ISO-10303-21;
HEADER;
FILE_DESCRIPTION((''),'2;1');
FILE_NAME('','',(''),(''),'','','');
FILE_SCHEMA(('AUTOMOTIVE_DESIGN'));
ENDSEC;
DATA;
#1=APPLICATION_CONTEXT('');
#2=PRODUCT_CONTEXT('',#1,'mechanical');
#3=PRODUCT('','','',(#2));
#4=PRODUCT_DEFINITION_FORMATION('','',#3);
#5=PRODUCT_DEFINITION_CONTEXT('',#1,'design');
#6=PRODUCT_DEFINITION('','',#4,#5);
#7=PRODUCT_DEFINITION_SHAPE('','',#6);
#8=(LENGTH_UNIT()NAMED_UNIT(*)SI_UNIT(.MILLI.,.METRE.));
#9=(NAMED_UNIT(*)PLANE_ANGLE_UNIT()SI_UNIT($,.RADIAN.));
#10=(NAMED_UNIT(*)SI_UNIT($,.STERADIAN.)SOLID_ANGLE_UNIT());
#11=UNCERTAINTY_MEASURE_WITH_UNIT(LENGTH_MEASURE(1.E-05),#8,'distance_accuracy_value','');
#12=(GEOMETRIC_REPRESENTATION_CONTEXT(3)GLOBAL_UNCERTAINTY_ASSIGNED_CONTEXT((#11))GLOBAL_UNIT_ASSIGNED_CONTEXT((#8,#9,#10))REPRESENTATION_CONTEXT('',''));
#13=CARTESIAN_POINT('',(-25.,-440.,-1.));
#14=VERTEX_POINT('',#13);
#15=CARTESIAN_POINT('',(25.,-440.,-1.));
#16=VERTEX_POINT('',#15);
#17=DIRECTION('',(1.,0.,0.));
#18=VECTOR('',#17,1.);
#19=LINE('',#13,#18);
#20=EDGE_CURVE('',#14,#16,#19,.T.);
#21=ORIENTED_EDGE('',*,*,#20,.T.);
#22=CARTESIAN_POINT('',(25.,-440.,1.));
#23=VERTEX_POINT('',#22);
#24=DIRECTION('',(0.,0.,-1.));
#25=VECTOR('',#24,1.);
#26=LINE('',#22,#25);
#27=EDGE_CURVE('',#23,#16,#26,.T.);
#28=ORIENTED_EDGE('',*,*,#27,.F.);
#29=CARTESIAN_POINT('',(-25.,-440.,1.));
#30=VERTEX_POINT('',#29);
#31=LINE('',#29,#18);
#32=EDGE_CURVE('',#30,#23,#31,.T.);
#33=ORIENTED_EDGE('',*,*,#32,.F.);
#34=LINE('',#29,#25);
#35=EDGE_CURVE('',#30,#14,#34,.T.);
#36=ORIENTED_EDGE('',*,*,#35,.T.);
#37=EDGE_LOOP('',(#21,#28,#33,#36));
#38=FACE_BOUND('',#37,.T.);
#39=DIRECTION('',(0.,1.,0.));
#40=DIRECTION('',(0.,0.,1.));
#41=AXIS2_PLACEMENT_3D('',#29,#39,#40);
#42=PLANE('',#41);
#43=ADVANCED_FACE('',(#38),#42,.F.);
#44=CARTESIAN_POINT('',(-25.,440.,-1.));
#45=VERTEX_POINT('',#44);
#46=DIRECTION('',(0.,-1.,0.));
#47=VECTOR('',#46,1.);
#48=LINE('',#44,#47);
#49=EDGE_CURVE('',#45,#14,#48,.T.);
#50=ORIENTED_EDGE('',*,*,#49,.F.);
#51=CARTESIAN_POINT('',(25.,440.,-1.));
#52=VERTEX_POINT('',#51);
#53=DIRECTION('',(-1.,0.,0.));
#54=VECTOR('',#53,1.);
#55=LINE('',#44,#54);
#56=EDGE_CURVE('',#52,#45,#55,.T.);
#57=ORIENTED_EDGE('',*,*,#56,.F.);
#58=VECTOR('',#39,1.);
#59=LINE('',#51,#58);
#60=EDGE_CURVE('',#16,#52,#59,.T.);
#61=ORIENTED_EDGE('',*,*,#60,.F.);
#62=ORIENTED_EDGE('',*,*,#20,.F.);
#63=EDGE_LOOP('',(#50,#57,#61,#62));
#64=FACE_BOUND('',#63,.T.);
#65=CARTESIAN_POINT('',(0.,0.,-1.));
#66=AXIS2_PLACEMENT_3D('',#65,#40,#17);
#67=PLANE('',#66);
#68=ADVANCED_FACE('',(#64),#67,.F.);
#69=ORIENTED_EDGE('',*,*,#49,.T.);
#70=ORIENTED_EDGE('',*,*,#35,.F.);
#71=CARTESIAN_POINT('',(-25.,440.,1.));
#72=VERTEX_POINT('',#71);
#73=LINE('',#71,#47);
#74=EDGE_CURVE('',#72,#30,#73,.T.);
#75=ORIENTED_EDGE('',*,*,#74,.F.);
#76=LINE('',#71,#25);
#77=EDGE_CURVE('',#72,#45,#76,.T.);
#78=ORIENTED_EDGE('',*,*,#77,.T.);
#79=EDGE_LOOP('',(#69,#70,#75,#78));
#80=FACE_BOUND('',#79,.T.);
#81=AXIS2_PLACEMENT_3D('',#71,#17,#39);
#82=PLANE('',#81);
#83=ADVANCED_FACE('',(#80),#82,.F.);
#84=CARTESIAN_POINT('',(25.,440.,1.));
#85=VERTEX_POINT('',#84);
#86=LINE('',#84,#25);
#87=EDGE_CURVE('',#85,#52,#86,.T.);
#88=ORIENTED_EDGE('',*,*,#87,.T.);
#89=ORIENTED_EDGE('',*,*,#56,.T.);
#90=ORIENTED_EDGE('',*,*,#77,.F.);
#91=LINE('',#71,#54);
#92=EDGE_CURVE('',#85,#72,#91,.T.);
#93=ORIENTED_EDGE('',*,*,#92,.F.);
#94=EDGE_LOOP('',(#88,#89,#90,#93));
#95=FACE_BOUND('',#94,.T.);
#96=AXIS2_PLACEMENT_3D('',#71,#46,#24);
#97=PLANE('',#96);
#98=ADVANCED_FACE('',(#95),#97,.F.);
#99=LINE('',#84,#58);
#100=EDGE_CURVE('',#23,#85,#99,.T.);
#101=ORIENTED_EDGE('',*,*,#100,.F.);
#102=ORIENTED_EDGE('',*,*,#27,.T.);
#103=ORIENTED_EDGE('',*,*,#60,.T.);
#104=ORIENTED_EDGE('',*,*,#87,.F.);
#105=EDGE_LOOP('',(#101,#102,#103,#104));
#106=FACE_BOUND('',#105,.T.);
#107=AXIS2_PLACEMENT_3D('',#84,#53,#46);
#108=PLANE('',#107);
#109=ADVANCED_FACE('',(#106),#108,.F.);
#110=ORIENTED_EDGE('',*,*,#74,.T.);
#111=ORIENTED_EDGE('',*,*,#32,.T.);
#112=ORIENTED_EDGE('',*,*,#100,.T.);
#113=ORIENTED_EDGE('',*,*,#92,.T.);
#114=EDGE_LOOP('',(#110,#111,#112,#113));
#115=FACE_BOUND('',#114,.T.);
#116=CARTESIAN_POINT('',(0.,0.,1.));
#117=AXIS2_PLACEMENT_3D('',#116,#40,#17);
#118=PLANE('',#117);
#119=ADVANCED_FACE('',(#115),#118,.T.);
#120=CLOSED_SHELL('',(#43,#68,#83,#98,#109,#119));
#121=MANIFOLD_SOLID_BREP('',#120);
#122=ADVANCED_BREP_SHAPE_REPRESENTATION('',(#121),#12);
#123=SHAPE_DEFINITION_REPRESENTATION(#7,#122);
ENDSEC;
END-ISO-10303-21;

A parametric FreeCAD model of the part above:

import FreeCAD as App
import Part
import Sketcher

V = App.Vector
Q = App.Units.Quantity


def add_polygon(sketch, points):
    """Adds a closed chain of lines whose ends are joined by coincident constraints."""
    first, n = sketch.GeometryCount, len(points)
    for a, b in zip(points, points[1:] + points[:1]):
        sketch.addGeometry(Part.LineSegment(App.Vector(*a, 0), App.Vector(*b, 0)), False)
    for i in range(n):
        sketch.addConstraint(Sketcher.Constraint("Coincident", first + i, 2, first + (i + 1) % n, 1))

doc = App.newDocument("Part")
body = doc.addObject("PartDesign::Body", "Body")

# Sketch on XY plane
sketch1 = body.newObject("Sketcher::SketchObject", "Sketch")
sketch1.AttachmentSupport = (doc.getObject("XY_Plane"), [""])
sketch1.MapMode = "FlatFace"
add_polygon(sketch1, [(-25, 440), (-25, -440), (25, -440), (25, 440)])  # lines 0-3
sketch1.addConstraint(Sketcher.Constraint("Vertical", 0))
sketch1.addConstraint(Sketcher.Constraint("Horizontal", 1))
sketch1.addConstraint(Sketcher.Constraint("Vertical", 2))
sketch1.addConstraint(Sketcher.Constraint("Horizontal", 3))
sketch1.addConstraint(Sketcher.Constraint("Symmetric", 0, 2, 2, 2, -1, 1))
sketch1.addConstraint(Sketcher.Constraint("DistanceX", 1, 1, 1, 2, Q("50 mm")))
sketch1.addConstraint(Sketcher.Constraint("DistanceY", 0, 2, 0, 1, Q("880 mm")))
pad1 = body.newObject("PartDesign::Pad", "Pad")
pad1.Profile = sketch1
pad1.Length = 2
pad1.Midplane = True

doc.recompute()
